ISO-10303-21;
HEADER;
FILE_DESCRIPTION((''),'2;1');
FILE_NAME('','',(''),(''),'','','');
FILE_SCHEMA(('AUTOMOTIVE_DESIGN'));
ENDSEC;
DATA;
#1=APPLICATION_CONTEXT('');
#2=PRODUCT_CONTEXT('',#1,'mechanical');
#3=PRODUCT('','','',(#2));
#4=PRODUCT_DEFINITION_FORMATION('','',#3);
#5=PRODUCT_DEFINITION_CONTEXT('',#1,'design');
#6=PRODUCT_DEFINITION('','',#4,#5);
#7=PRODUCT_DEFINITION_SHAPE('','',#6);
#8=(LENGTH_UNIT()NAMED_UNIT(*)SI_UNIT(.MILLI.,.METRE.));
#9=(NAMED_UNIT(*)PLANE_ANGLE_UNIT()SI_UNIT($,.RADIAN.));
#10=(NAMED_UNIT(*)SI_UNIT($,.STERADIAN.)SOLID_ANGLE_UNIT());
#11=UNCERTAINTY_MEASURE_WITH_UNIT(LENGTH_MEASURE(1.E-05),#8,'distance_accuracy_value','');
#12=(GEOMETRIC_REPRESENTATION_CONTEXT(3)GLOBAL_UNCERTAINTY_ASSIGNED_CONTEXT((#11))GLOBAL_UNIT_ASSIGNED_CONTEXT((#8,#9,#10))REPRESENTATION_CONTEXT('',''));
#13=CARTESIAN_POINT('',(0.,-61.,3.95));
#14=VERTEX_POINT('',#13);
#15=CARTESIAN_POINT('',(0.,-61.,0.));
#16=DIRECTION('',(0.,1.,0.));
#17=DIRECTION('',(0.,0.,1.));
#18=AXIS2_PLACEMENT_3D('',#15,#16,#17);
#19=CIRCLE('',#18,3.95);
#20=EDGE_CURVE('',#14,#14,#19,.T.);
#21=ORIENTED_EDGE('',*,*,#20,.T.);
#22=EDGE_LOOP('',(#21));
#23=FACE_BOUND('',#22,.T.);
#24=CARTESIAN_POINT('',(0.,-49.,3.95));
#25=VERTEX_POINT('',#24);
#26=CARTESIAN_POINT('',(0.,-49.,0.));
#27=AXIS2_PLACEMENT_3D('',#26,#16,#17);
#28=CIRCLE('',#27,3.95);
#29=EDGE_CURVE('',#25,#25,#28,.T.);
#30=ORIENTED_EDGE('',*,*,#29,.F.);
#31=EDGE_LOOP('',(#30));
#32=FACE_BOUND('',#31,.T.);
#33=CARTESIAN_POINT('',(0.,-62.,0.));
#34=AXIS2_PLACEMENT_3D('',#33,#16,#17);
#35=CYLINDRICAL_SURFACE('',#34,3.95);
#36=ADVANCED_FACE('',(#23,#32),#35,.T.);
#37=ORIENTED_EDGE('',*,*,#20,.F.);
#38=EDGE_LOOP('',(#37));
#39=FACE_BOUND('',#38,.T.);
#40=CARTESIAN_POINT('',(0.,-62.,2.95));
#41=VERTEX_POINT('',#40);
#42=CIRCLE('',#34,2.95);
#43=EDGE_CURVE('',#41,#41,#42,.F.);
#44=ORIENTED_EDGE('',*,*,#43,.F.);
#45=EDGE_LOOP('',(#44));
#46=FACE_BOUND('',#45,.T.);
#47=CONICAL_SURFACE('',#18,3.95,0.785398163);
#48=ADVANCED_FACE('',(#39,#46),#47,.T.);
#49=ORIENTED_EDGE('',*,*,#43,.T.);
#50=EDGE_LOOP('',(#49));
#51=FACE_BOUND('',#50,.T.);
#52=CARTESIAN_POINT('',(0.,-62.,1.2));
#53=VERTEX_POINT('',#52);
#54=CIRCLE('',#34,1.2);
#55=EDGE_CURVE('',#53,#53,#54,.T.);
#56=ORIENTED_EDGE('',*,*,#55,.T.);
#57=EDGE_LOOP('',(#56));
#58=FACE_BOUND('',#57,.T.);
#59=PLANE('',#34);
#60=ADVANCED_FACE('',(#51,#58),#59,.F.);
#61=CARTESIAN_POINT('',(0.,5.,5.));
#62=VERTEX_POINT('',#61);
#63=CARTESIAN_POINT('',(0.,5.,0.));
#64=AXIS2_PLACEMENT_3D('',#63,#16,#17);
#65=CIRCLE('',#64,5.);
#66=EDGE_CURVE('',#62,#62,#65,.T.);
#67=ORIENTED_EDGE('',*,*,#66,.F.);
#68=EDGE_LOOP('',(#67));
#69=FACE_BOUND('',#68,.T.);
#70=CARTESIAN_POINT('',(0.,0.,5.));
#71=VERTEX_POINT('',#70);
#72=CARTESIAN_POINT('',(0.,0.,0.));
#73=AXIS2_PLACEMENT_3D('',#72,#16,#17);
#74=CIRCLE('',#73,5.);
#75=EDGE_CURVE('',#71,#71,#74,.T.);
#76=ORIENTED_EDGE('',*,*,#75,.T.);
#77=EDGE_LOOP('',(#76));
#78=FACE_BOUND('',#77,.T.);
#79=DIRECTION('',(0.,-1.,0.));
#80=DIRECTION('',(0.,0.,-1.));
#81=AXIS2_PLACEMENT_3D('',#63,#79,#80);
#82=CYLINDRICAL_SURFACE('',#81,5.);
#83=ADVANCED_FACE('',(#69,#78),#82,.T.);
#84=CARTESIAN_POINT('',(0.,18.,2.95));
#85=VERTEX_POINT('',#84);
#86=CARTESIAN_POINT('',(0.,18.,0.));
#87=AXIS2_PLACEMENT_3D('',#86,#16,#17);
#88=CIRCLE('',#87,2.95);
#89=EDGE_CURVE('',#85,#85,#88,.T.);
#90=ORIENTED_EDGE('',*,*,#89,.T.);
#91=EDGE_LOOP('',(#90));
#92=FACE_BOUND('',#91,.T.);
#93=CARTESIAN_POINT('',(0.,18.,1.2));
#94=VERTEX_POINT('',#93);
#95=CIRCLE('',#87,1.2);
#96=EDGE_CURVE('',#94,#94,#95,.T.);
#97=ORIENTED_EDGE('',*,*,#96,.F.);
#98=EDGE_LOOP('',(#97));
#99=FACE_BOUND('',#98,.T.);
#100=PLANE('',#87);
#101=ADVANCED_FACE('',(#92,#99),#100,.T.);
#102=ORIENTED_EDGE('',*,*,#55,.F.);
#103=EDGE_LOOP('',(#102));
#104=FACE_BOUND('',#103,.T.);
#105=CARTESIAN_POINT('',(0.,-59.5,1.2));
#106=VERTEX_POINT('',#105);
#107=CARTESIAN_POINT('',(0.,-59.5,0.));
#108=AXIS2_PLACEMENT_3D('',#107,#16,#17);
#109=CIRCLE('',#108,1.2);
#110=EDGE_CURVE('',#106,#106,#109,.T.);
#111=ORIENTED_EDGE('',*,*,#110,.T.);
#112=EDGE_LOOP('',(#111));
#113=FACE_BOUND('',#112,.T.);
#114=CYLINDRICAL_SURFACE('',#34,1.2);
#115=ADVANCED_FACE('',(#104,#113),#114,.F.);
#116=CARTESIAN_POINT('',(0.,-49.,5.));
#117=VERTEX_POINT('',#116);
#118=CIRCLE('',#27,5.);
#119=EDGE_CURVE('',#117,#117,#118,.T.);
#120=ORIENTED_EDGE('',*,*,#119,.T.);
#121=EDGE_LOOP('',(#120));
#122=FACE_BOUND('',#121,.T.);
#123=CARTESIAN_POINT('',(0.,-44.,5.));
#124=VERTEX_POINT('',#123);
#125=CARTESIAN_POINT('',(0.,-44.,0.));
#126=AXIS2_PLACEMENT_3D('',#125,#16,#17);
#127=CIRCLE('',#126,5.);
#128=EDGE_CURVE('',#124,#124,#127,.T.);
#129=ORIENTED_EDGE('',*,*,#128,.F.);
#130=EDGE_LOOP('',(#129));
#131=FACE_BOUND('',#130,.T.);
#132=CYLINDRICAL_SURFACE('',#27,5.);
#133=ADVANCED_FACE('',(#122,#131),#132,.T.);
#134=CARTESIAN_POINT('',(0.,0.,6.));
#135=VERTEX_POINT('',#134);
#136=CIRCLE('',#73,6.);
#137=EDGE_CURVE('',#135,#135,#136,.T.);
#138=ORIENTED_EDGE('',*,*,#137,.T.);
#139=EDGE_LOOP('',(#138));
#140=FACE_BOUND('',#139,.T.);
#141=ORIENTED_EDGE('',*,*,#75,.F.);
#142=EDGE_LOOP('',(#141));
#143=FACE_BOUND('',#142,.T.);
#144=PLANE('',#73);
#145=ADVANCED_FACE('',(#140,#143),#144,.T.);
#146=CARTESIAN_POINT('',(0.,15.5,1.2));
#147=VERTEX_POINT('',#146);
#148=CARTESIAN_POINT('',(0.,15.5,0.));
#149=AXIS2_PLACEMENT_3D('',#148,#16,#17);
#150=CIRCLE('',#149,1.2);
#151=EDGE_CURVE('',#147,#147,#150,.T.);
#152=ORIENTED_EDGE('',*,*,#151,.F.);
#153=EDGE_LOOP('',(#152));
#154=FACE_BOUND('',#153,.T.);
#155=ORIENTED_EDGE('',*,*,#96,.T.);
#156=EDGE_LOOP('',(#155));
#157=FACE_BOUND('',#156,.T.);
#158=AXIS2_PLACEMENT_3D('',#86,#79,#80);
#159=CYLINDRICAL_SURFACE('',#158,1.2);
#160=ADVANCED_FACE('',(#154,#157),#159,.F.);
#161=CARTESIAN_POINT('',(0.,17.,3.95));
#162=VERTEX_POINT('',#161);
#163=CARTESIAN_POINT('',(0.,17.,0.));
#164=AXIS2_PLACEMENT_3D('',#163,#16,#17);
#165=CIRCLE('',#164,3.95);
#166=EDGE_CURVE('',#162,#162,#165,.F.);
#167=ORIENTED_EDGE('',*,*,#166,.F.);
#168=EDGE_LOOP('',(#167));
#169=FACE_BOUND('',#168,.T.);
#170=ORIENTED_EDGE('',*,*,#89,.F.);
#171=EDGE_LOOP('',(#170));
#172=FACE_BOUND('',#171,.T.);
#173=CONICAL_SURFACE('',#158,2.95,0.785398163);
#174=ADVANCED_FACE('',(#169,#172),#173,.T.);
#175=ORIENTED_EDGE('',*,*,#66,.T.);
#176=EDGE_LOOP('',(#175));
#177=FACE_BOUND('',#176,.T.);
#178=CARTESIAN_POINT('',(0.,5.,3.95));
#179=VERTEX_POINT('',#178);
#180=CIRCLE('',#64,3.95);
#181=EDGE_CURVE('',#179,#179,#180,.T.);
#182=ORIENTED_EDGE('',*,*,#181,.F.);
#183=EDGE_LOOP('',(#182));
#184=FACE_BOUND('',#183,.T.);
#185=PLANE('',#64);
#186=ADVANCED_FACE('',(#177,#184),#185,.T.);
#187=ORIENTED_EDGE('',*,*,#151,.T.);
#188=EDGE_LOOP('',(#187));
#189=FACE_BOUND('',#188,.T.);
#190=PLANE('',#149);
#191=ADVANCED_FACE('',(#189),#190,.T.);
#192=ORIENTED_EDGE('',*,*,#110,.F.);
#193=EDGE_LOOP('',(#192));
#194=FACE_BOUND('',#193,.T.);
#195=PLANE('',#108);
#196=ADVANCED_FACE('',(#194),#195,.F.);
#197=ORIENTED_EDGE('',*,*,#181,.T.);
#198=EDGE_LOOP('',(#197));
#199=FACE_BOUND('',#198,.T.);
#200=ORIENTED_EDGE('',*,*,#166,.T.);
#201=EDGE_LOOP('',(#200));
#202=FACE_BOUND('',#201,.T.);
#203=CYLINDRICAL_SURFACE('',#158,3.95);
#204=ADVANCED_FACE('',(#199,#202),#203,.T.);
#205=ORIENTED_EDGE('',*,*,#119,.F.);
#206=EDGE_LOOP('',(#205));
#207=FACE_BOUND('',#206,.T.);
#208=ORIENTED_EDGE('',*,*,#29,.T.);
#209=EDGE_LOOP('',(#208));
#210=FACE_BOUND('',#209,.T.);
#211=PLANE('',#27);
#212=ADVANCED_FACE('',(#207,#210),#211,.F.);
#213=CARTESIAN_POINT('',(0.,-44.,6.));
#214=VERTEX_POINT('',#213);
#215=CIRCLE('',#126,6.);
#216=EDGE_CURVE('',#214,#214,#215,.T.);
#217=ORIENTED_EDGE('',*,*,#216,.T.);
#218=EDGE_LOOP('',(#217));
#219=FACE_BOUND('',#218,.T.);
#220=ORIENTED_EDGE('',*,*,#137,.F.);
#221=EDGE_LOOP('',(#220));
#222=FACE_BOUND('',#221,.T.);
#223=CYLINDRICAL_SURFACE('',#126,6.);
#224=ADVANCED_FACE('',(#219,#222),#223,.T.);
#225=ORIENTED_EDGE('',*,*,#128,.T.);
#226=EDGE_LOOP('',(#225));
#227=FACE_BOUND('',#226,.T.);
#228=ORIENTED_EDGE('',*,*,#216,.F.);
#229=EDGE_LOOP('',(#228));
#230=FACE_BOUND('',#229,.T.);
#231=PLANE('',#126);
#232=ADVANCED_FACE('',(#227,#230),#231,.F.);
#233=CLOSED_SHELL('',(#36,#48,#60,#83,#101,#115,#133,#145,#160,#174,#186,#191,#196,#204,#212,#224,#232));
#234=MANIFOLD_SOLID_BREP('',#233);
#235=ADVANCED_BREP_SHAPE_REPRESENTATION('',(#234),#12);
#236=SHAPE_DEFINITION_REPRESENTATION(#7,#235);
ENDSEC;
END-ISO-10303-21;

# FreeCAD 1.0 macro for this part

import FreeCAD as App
import Part
import Sketcher

V = App.Vector


def edges_at(feature, points):
    """Names of the edges that pass closest to the given points."""
    edges = feature.Shape.Edges
    near = lambda p: min(range(len(edges)), key=lambda i: edges[i].distToShape(Part.Vertex(*p))[0])
    return sorted({f"Edge{near(p) + 1}" for p in points})

doc = App.newDocument("Part")
body = doc.addObject("PartDesign::Body", "Body")

# Sketch on XZ plane
sketch1 = doc.addObject("Sketcher::SketchObject", "Sketch")
body.addObject(sketch1)
sketch1.AttachmentSupport = (doc.XZ_Plane, [""])
sketch1.MapMode = "FlatFace"
sketch1.addGeometry(Part.Circle(V(0, 0, 0), V(0, 0, 1), 4), False)
sketch1.addConstraint(Sketcher.Constraint("Coincident", 0, 3, -1, 1))
sketch1.addConstraint(Sketcher.Constraint("Diameter", 0, 7.9))
pad1 = doc.addObject("PartDesign::Pad", "Pad")
body.addObject(pad1)
pad1.Profile = sketch1
pad1.Length = 18
pad1.Reversed = True

# Sketch on XZ plane
sketch2 = doc.addObject("Sketcher::SketchObject", "Sketch001")
body.addObject(sketch2)
sketch2.AttachmentSupport = (doc.XZ_Plane, [""])
sketch2.MapMode = "FlatFace"
sketch2.AttachmentOffset = App.Placement(V(0, 0, -15.5), App.Rotation())
sketch2.addGeometry(Part.Circle(V(0, 0, 0), V(0, 0, 1), 1.2), False)
sketch2.addConstraint(Sketcher.Constraint("Coincident", 0, 3, -1, 1))
sketch2.addConstraint(Sketcher.Constraint("Diameter", 0, 2.4))
pocket1 = doc.addObject("PartDesign::Pocket", "Pocket")
body.addObject(pocket1)
pocket1.Profile = sketch2
pocket1.Length = 2.5

# Sketch on XZ plane
sketch3 = doc.addObject("Sketcher::SketchObject", "Sketch002")
body.addObject(sketch3)
sketch3.AttachmentSupport = (doc.XZ_Plane, [""])
sketch3.MapMode = "FlatFace"
sketch3.addGeometry(Part.Circle(V(0, 0, 0), V(0, 0, 1), 5), False)
sketch3.addGeometry(Part.Circle(V(0, 0, 0), V(0, 0, 1), 4), False)
sketch3.addConstraint(Sketcher.Constraint("Coincident", 0, 3, -1, 1))
sketch3.addConstraint(Sketcher.Constraint("Coincident", 1, 3, -1, 1))
sketch3.addConstraint(Sketcher.Constraint("Diameter", 0, 10.0))
sketch3.addConstraint(Sketcher.Constraint("Diameter", 1, 7.9))
pad2 = doc.addObject("PartDesign::Pad", "Pad001")
body.addObject(pad2)
pad2.Profile = sketch3
pad2.Length = 5
pad2.Reversed = True

# Sketch on XZ plane
sketch4 = doc.addObject("Sketcher::SketchObject", "Sketch003")
body.addObject(sketch4)
sketch4.AttachmentSupport = (doc.XZ_Plane, [""])
sketch4.MapMode = "FlatFace"
sketch4.AttachmentOffset = App.Placement(V(0, 0, 44), App.Rotation())
sketch4.addGeometry(Part.Circle(V(0, 0, 0), V(0, 0, 1), 6), False)
sketch4.addConstraint(Sketcher.Constraint("Coincident", 0, 3, -1, 1))
sketch4.addConstraint(Sketcher.Constraint("Diameter", 0, 12.0))
pad3 = doc.addObject("PartDesign::Pad", "Pad002")
body.addObject(pad3)
pad3.Profile = sketch4
pad3.Length = 44
pad3.Reversed = True

# Sketch on XZ plane
sketch5 = doc.addObject("Sketcher::SketchObject", "Sketch004")
body.addObject(sketch5)
sketch5.AttachmentSupport = (doc.XZ_Plane, [""])
sketch5.MapMode = "FlatFace"
sketch5.AttachmentOffset = App.Placement(V(0, 0, 49), App.Rotation())
sketch5.addGeometry(Part.Circle(V(0, 0, 0), V(0, 0, 1), 5), False)
sketch5.addConstraint(Sketcher.Constraint("Coincident", 0, 3, -1, 1))
sketch5.addConstraint(Sketcher.Constraint("Diameter", 0, 10.0))
pad4 = doc.addObject("PartDesign::Pad", "Pad003")
body.addObject(pad4)
pad4.Profile = sketch5
pad4.Length = 49
pad4.Reversed = True

# Sketch on XZ plane
sketch6 = doc.addObject("Sketcher::SketchObject", "Sketch005")
body.addObject(sketch6)
sketch6.AttachmentSupport = (doc.XZ_Plane, [""])
sketch6.MapMode = "FlatFace"
sketch6.AttachmentOffset = App.Placement(V(0, 0, 62), App.Rotation())
sketch6.addGeometry(Part.Circle(V(0, 0, 0), V(0, 0, 1), 4), False)
sketch6.addConstraint(Sketcher.Constraint("Coincident", 0, 3, -1, 1))
sketch6.addConstraint(Sketcher.Constraint("Diameter", 0, 7.9))
pad5 = doc.addObject("PartDesign::Pad", "Pad004")
body.addObject(pad5)
pad5.Profile = sketch6
pad5.Length = 62
pad5.Reversed = True

# Sketch on XZ plane
sketch7 = doc.addObject("Sketcher::SketchObject", "Sketch006")
body.addObject(sketch7)
sketch7.AttachmentSupport = (doc.XZ_Plane, [""])
sketch7.MapMode = "FlatFace"
sketch7.AttachmentOffset = App.Placement(V(0, 0, 59.5), App.Rotation())
sketch7.addGeometry(Part.Circle(V(0, 0, 0), V(0, 0, 1), 1.2), False)
sketch7.addConstraint(Sketcher.Constraint("Coincident", 0, 3, -1, 1))
sketch7.addConstraint(Sketcher.Constraint("Diameter", 0, 2.4))
pocket2 = doc.addObject("PartDesign::Pocket", "Pocket001")
body.addObject(pocket2)
pocket2.Profile = sketch7
pocket2.Type = "ThroughAll"
pocket2.Reversed = True
doc.recompute()

chamfer = doc.addObject("PartDesign::Chamfer", "Chamfer")
body.addObject(chamfer)
chamfer.Base = (pocket2, edges_at(pocket2, [(0, -62, -3.95), (0, 18, -3.95)]))
chamfer.Size = 1

doc.recompute()
